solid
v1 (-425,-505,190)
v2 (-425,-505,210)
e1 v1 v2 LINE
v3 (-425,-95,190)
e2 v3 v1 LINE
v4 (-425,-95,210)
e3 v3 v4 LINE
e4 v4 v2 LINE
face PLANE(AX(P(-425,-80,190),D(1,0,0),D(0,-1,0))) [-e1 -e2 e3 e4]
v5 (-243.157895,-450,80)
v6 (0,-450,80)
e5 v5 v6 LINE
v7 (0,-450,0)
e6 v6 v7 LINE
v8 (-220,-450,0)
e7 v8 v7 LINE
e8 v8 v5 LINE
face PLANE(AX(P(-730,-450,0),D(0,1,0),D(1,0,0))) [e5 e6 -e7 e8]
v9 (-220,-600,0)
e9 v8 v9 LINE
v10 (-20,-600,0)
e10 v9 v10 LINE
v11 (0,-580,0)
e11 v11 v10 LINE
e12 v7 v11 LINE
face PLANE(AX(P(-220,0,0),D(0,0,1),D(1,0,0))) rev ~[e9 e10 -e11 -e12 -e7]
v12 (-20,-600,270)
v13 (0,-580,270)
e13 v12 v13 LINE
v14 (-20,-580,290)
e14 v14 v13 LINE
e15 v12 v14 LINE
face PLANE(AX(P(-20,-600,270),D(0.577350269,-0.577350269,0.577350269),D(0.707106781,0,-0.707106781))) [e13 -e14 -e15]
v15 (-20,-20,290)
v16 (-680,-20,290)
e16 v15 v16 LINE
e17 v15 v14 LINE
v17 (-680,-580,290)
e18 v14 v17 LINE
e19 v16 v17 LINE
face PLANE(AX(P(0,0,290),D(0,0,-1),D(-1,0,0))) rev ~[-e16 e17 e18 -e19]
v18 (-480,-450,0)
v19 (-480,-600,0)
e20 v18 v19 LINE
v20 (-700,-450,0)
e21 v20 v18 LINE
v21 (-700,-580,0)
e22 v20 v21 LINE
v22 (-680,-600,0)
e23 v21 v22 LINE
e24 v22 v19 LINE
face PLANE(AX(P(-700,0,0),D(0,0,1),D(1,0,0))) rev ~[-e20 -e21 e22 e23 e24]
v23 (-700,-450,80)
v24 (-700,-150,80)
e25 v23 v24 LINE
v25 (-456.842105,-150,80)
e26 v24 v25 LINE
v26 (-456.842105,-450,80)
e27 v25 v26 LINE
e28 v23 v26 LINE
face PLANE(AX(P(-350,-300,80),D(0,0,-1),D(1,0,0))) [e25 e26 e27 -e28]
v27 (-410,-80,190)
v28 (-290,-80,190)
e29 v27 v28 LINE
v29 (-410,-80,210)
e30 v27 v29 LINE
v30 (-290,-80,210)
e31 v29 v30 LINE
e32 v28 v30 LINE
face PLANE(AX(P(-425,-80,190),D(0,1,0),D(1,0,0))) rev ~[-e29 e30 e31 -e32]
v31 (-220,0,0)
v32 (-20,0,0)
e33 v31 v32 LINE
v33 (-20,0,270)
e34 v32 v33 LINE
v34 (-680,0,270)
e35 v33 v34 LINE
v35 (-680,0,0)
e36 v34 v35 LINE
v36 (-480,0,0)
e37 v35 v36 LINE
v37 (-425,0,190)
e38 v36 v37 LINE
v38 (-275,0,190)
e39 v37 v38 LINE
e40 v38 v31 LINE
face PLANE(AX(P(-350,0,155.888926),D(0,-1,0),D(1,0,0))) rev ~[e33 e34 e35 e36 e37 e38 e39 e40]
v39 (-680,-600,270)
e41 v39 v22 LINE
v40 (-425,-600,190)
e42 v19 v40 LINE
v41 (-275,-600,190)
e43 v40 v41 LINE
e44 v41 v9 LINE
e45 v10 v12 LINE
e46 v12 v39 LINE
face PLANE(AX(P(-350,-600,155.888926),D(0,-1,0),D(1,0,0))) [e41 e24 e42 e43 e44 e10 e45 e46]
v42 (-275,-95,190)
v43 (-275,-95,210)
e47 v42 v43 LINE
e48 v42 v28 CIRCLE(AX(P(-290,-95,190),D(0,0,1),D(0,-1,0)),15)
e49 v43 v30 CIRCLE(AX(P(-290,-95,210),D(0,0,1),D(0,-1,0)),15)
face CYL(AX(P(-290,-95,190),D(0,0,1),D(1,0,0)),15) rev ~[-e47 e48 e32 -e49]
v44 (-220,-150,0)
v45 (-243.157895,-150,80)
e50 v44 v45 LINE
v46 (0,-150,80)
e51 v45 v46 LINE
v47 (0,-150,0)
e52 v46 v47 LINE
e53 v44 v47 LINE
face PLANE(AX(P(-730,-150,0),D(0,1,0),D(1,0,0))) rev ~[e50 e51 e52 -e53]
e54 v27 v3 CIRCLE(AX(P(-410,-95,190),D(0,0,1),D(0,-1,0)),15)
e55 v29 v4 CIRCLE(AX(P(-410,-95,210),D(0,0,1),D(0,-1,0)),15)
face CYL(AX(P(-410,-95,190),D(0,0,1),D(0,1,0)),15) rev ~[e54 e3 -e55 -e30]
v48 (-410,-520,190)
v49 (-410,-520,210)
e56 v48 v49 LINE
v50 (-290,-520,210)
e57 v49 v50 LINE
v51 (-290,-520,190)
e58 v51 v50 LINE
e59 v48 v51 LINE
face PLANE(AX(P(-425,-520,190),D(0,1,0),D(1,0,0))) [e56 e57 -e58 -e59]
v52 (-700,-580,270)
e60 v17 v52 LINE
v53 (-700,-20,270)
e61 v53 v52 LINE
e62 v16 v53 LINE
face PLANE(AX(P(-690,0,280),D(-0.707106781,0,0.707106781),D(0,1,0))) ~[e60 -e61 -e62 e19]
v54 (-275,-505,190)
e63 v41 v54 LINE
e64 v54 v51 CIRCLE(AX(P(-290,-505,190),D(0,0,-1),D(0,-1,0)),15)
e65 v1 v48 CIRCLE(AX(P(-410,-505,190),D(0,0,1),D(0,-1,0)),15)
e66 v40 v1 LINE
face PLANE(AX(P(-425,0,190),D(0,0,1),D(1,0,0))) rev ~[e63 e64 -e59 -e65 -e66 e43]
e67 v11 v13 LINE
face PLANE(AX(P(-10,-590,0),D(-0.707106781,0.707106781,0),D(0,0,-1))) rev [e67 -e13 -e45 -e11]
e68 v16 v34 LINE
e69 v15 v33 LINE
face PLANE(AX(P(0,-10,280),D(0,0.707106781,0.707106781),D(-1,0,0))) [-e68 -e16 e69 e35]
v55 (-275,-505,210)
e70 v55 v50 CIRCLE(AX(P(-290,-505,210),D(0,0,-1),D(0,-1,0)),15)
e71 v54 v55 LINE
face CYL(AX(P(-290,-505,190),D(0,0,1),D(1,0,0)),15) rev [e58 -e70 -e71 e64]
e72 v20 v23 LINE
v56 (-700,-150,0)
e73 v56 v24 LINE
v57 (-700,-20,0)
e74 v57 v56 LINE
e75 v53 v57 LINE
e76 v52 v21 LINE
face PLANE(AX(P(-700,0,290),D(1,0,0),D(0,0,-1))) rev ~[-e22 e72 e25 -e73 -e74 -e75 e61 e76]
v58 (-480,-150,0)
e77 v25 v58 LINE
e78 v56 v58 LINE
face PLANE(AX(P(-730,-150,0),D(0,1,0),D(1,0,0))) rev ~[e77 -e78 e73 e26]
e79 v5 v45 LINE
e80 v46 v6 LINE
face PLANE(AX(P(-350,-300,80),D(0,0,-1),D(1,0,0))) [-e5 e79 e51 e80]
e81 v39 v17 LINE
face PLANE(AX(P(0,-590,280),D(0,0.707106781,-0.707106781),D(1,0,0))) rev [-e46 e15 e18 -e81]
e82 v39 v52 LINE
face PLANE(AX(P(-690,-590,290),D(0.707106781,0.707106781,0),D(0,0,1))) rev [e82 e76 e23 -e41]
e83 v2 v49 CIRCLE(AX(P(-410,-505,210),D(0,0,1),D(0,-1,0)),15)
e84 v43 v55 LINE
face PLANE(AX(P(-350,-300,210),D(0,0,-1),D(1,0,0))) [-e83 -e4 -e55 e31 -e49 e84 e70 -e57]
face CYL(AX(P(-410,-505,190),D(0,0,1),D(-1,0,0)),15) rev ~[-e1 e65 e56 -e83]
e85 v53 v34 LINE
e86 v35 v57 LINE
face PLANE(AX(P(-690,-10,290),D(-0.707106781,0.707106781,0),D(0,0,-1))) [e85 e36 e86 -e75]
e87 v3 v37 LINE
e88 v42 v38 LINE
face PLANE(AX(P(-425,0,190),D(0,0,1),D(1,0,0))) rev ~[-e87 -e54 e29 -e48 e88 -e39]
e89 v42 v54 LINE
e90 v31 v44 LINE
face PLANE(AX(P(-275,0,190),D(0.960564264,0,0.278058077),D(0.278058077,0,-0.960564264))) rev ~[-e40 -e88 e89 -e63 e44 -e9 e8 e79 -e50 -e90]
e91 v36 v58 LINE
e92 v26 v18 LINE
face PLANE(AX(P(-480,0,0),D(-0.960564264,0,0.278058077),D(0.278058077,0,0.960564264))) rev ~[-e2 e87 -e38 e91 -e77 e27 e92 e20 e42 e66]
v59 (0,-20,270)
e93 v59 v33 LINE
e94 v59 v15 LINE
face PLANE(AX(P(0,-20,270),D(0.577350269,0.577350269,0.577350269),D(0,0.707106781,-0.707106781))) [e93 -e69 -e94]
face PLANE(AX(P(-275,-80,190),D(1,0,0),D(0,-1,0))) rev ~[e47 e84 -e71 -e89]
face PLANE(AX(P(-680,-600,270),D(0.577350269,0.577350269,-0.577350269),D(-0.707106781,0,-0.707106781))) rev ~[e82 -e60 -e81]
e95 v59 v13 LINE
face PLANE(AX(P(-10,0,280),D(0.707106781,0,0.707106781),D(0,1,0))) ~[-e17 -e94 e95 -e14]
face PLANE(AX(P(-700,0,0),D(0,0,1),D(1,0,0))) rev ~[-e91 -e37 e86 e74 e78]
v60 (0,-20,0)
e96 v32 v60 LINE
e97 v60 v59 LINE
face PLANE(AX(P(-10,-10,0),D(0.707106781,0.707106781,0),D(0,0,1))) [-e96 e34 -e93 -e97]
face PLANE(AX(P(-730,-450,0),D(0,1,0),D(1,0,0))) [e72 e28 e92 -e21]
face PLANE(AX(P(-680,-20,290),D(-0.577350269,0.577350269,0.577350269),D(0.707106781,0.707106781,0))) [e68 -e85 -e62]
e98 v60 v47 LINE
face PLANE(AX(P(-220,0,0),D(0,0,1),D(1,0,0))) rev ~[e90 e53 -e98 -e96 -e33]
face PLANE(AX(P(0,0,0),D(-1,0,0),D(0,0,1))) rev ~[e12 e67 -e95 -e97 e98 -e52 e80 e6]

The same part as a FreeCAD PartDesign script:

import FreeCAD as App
import Part
import Sketcher
from FreeCAD import Vector


def edges_at(feature, points):
    """Names of the edges that pass closest to the given points."""
    edges = feature.Shape.Edges
    near = lambda p: min(range(len(edges)), key=lambda i: edges[i].distToShape(Part.Vertex(*p))[0])
    return sorted({f"Edge{near(p) + 1}" for p in points})

doc = App.newDocument("Part")
body = doc.addObject("PartDesign::Body", "Body")

# Sketch on XZ plane
sketch1 = body.newObject("Sketcher::SketchObject", "Sketch")
sketch1.AttachmentSupport = (doc.getObject("XZ_Plane"), [""])
sketch1.MapMode = "FlatFace"
sketch1.addGeometry([
    Part.LineSegment(Vector(-220, 0, 0), Vector(0, 0, 0)),  # 0
    Part.LineSegment(Vector(0, 0, 0), Vector(0, 290, 0)),  # 1
    Part.LineSegment(Vector(0, 290, 0), Vector(-700, 290, 0)),  # 2
    Part.LineSegment(Vector(-700, 290, 0), Vector(-700, 0, 0)),  # 3
    Part.LineSegment(Vector(-700, 0, 0), Vector(-480, 0, 0)),  # 4
    Part.LineSegment(Vector(-480, 0, 0), Vector(-425, 190, 0)),  # 5
    Part.LineSegment(Vector(-425, 190, 0), Vector(-275, 190, 0)),  # 6
    Part.LineSegment(Vector(-275, 190, 0), Vector(-220, 0, 0)),  # 7
], False)
sketch1.addConstraint([
    Sketcher.Constraint("Coincident", 0, 2, 1, 1),
    Sketcher.Constraint("Coincident", 1, 2, 2, 1),
    Sketcher.Constraint("Coincident", 2, 2, 3, 1),
    Sketcher.Constraint("Coincident", 3, 2, 4, 1),
    Sketcher.Constraint("Coincident", 4, 2, 5, 1),
    Sketcher.Constraint("Coincident", 5, 2, 6, 1),
    Sketcher.Constraint("Coincident", 6, 2, 7, 1),
    Sketcher.Constraint("Coincident", 7, 2, 0, 1),
    Sketcher.Constraint("Horizontal", 0),
    Sketcher.Constraint("Vertical", 1),
    Sketcher.Constraint("Horizontal", 2),
    Sketcher.Constraint("Vertical", 3),
    Sketcher.Constraint("Horizontal", 4),
    Sketcher.Constraint("Horizontal", 6),
    Sketcher.Constraint("Coincident", 0, 2, -1, 1),
    Sketcher.Constraint("PointOnObject", 3, 2, -1),
    Sketcher.Constraint("Equal", 0, 4),
    Sketcher.Constraint("Equal", 5, 7),
    Sketcher.Constraint("DistanceX", 0, 1, 0, 2, 220.0),
    Sketcher.Constraint("DistanceX", 2, 2, 2, 1, 700.0),
    Sketcher.Constraint("DistanceX", 6, 1, 6, 2, 150.0),
    Sketcher.Constraint("DistanceY", 1, 1, 1, 2, 290.0),
    Sketcher.Constraint("DistanceY", -1, 1, 5, 2, 190.0),
])
pad1 = body.newObject("PartDesign::Pad", "Pad")
pad1.Profile = sketch1
pad1.Length = 600

# Sketch on XY plane
sketch2 = body.newObject("Sketcher::SketchObject", "Sketch001")
sketch2.AttachmentSupport = (doc.getObject("XY_Plane"), [""])
sketch2.MapMode = "FlatFace"
sketch2.addGeometry([
    Part.LineSegment(Vector(-730, -450, 0), Vector(-730, -150, 0)),
    Part.LineSegment(Vector(-730, -150, 0), Vector(30, -150, 0)),
    Part.LineSegment(Vector(30, -150, 0), Vector(30, -450, 0)),
    Part.LineSegment(Vector(30, -450, 0), Vector(-730, -450, 0)),
], False)
sketch2.addConstraint([
    Sketcher.Constraint("Coincident", 0, 2, 1, 1),
    Sketcher.Constraint("Coincident", 1, 2, 2, 1),
    Sketcher.Constraint("Coincident", 2, 2, 3, 1),
    Sketcher.Constraint("Coincident", 3, 2, 0, 1),
    Sketcher.Constraint("Vertical", 0),
    Sketcher.Constraint("Horizontal", 1),
    Sketcher.Constraint("Vertical", 2),
    Sketcher.Constraint("Horizontal", 3),
    Sketcher.Constraint("DistanceX", 1, 1, 1, 2, 760.0),
    Sketcher.Constraint("DistanceY", 0, 1, 0, 2, 300.0),
    Sketcher.Constraint("DistanceX", 0, 2, -1, 1, 730.0),
    Sketcher.Constraint("DistanceY", 0, 2, -1, 1, 150.0),
])
pocket1 = body.newObject("PartDesign::Pocket", "Pocket")
pocket1.Profile = sketch2
pocket1.Length = 80
pocket1.Reversed = True

# Sketch on XY plane
sketch3 = body.newObject("Sketcher::SketchObject", "Sketch002")
sketch3.AttachmentSupport = (doc.getObject("XY_Plane"), [""])
sketch3.MapMode = "FlatFace"
sketch3.AttachmentOffset = App.Placement(Vector(0, 0, 190), App.Rotation())
sketch3.addGeometry([
    Part.LineSegment(Vector(-425, -520, 0), Vector(-425, -80, 0)),
    Part.LineSegment(Vector(-425, -80, 0), Vector(-275, -80, 0)),
    Part.LineSegment(Vector(-275, -80, 0), Vector(-275, -520, 0)),
    Part.LineSegment(Vector(-275, -520, 0), Vector(-425, -520, 0)),
], False)
sketch3.addConstraint([
    Sketcher.Constraint("Coincident", 0, 2, 1, 1),
    Sketcher.Constraint("Coincident", 1, 2, 2, 1),
    Sketcher.Constraint("Coincident", 2, 2, 3, 1),
    Sketcher.Constraint("Coincident", 3, 2, 0, 1),
    Sketcher.Constraint("Vertical", 0),
    Sketcher.Constraint("Horizontal", 1),
    Sketcher.Constraint("Vertical", 2),
    Sketcher.Constraint("Horizontal", 3),
    Sketcher.Constraint("DistanceX", 1, 1, 1, 2, 150.0),
    Sketcher.Constraint("DistanceY", 0, 1, 0, 2, 440.0),
    Sketcher.Constraint("DistanceX", 0, 2, -1, 1, 425.0),
    Sketcher.Constraint("DistanceY", 0, 2, -1, 1, 80.0),
])
pocket2 = body.newObject("PartDesign::Pocket", "Pocket001")
pocket2.Profile = sketch3
pocket2.Length = 20
pocket2.Reversed = True
doc.recompute()

chamfer = body.newObject("PartDesign::Chamfer", "Chamfer")
chamfer.Base = (pocket2, edges_at(pocket2, [
    (-700, 0, 145),
    (-700, -300, 290),
    (-350, 0, 290),
    (0, -300, 290),
    (-350, -600, 290),
    (-700, -600, 145),
    (0, -600, 145),
    (0, 0, 145),
]))
chamfer.Size = 20
doc.recompute()

fillet = body.newObject("PartDesign::Fillet", "Fillet")
fillet.Base = (chamfer, edges_at(chamfer, [
    (-425, -520, 200),
    (-275, -520, 200),
    (-425, -80, 200),
    (-275, -80, 200),
]))
fillet.Radius = 15

doc.recompute()
